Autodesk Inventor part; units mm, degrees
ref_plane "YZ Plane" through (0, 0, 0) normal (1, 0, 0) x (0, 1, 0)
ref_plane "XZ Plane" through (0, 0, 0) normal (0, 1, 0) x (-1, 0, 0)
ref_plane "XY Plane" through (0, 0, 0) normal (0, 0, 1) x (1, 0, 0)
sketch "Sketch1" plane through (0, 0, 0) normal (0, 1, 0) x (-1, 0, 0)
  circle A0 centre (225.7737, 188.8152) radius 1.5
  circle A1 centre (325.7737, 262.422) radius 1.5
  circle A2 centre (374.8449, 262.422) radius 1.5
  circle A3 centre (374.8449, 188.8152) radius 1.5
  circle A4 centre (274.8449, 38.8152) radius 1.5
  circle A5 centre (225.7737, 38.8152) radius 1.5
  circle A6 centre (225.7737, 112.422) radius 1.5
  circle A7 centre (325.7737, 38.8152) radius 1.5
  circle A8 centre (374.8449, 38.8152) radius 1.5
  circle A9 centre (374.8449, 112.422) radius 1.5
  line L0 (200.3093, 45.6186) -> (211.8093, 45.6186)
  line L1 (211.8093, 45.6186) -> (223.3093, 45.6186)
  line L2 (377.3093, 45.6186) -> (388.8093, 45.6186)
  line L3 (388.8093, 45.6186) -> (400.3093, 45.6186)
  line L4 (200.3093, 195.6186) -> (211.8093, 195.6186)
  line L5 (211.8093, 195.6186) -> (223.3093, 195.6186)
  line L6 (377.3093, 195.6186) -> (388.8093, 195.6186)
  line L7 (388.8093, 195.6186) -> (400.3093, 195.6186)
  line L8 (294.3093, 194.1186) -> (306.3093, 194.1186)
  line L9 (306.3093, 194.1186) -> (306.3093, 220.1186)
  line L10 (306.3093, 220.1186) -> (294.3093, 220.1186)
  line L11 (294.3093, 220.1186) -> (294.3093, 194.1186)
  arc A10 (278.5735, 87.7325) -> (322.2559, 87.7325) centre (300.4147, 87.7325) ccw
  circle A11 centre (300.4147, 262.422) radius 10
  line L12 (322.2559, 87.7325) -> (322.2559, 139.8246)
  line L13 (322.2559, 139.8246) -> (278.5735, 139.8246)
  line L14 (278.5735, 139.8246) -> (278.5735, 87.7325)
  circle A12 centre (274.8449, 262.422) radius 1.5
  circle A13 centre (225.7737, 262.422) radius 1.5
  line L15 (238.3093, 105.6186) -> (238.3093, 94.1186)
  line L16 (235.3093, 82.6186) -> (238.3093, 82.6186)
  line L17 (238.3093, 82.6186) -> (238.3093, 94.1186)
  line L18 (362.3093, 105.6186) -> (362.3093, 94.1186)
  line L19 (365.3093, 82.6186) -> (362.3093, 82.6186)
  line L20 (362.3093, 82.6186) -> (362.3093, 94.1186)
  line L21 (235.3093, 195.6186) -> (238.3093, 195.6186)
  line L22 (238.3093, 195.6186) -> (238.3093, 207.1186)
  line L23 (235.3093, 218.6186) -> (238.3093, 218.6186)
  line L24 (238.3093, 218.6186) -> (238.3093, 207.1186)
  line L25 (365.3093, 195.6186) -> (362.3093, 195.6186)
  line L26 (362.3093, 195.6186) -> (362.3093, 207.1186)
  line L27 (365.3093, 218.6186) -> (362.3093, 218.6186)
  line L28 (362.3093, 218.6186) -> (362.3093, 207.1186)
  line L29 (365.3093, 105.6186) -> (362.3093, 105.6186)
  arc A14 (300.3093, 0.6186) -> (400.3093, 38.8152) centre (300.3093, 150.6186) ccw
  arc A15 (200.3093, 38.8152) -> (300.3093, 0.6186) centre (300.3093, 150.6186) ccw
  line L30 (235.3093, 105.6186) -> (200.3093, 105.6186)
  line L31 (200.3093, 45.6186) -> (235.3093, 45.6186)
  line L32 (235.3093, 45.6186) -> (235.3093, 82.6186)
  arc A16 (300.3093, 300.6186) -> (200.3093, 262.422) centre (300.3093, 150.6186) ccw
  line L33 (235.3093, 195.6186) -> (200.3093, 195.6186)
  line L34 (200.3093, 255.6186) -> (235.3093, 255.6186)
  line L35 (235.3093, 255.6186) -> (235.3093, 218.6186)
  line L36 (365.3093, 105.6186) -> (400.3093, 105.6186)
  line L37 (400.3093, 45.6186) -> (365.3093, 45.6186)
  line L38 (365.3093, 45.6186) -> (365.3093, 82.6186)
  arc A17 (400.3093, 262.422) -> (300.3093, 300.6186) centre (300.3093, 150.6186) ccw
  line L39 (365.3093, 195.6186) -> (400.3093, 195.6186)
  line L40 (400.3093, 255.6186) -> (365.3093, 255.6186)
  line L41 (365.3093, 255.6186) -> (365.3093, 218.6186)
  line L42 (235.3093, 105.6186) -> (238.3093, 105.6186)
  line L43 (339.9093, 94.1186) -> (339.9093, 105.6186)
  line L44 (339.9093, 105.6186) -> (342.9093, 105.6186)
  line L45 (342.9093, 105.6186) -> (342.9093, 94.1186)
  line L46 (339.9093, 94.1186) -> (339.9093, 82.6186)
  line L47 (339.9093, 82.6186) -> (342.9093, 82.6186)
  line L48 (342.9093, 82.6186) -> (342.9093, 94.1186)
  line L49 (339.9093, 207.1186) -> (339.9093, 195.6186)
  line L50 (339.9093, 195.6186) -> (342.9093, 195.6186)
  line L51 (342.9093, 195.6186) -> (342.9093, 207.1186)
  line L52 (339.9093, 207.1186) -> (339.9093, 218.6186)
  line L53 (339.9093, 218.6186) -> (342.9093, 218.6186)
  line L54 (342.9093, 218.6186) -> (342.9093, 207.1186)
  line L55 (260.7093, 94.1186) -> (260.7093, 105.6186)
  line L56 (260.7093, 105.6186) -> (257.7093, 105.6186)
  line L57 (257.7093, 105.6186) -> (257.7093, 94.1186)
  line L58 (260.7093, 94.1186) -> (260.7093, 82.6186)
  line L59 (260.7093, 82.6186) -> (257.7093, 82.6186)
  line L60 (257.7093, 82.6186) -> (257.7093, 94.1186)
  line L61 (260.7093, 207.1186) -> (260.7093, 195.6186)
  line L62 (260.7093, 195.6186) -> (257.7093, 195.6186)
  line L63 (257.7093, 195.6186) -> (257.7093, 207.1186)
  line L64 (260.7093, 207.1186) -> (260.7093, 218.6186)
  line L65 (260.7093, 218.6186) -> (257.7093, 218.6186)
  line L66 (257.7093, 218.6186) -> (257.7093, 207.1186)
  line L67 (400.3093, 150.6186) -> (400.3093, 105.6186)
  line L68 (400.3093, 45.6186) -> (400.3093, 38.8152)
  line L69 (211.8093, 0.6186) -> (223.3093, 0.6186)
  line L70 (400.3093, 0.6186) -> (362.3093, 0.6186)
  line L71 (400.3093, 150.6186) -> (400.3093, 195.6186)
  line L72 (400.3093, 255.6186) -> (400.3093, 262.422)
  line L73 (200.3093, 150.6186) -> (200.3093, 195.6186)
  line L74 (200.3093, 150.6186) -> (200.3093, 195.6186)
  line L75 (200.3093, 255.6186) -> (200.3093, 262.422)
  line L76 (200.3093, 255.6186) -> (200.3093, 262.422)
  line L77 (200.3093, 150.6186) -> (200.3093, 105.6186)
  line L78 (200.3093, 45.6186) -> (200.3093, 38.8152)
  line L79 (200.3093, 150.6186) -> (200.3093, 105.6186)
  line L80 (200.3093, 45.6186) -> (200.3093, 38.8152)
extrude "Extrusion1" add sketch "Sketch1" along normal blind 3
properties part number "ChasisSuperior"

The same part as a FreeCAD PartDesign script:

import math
import FreeCAD as App
import Part
import Sketcher

doc = App.newDocument("Part")
params = doc.addObject("Spreadsheet::Sheet", "Params")
for row, (alias, value) in enumerate([
    ("sketch1_diameter", "3 mm"),
    ("sketch1_diameter2", "20 mm"),
    ("sketch1_radius", "150 mm"),
    ("sketch1_width", "35 mm"),
    ("sketch1_width2", "3 mm"),
    ("pad1_length", "3 mm"),
], start=1):
    params.set(f"A{row}", alias)
    params.set(f"B{row}", "=" + value)
    params.setAlias(f"B{row}", alias)

body = doc.addObject("PartDesign::Body", "Body")

# Sketch on XZ plane
sketch1 = body.newObject("Sketcher::SketchObject", "Sketch")
sketch1.AttachmentSupport = (doc.getObject("XZ_Plane"), [""])
sketch1.MapMode = "FlatFace"
sketch1.addGeometry([
    Part.LineSegment(App.Vector(-235.3093, 45.6186, 0), App.Vector(-200.3093, 45.6186, 0)),  # 0
    Part.LineSegment(App.Vector(-200.3093, 45.6186, 0), App.Vector(-200.3093, 38.8152, 0)),  # 1
    Part.ArcOfCircle(Part.Circle(App.Vector(-300.3093, 150.6186, 0), App.Vector(0, 0, 1), 150), math.radians(-90), math.radians(-48.189685)),  # 2
    Part.ArcOfCircle(Part.Circle(App.Vector(-300.3093, 150.6186, 0), App.Vector(0, 0, 1), 150.000001), math.radians(-131.810315), math.radians(-90)),  # 3
    Part.LineSegment(App.Vector(-400.3093, 38.8152, 0), App.Vector(-400.3093, 45.6186, 0)),  # 4
    Part.LineSegment(App.Vector(-400.3093, 45.6186, 0), App.Vector(-365.3093, 45.6186, 0)),  # 5
    Part.LineSegment(App.Vector(-365.3093, 45.6186, 0), App.Vector(-365.3093, 82.6186, 0)),  # 6
    Part.LineSegment(App.Vector(-365.3093, 82.6186, 0), App.Vector(-362.3093, 82.6186, 0)),  # 7
    Part.LineSegment(App.Vector(-362.3093, 82.6186, 0), App.Vector(-362.3093, 105.6186, 0)),  # 8
    Part.LineSegment(App.Vector(-362.3093, 105.6186, 0), App.Vector(-400.3093, 105.6186, 0)),  # 9
    Part.LineSegment(App.Vector(-400.3093, 105.6186, 0), App.Vector(-400.3093, 195.6186, 0)),  # 10
    Part.LineSegment(App.Vector(-400.3093, 195.6186, 0), App.Vector(-362.3093, 195.6186, 0)),  # 11
    Part.LineSegment(App.Vector(-362.3093, 195.6186, 0), App.Vector(-362.3093, 218.6186, 0)),  # 12
    Part.LineSegment(App.Vector(-362.3093, 218.6186, 0), App.Vector(-365.3093, 218.6186, 0)),  # 13
    Part.LineSegment(App.Vector(-365.3093, 218.6186, 0), App.Vector(-365.3093, 255.6186, 0)),  # 14
    Part.LineSegment(App.Vector(-365.3093, 255.6186, 0), App.Vector(-400.3093, 255.6186, 0)),  # 15
    Part.LineSegment(App.Vector(-400.3093, 255.6186, 0), App.Vector(-400.3093, 262.422, 0)),  # 16
    Part.ArcOfCircle(Part.Circle(App.Vector(-300.3093, 150.6186, 0), App.Vector(0, 0, 1), 150), math.radians(90), math.radians(131.810315)),  # 17
    Part.ArcOfCircle(Part.Circle(App.Vector(-300.3093, 150.6186, 0), App.Vector(0, 0, 1), 150.000001), math.radians(48.189685), math.radians(90)),  # 18
    Part.LineSegment(App.Vector(-200.3093, 262.422, 0), App.Vector(-200.3093, 255.6186, 0)),  # 19
    Part.LineSegment(App.Vector(-200.3093, 255.6186, 0), App.Vector(-235.3093, 255.6186, 0)),  # 20
    Part.LineSegment(App.Vector(-235.3093, 255.6186, 0), App.Vector(-235.3093, 218.6186, 0)),  # 21
    Part.LineSegment(App.Vector(-235.3093, 218.6186, 0), App.Vector(-238.3093, 218.6186, 0)),  # 22
    Part.LineSegment(App.Vector(-238.3093, 218.6186, 0), App.Vector(-238.3093, 195.6186, 0)),  # 23
    Part.LineSegment(App.Vector(-238.3093, 195.6186, 0), App.Vector(-200.3093, 195.6186, 0)),  # 24
    Part.LineSegment(App.Vector(-200.3093, 195.6186, 0), App.Vector(-200.3093, 105.6186, 0)),  # 25
    Part.LineSegment(App.Vector(-200.3093, 105.6186, 0), App.Vector(-238.3093, 105.6186, 0)),  # 26
    Part.LineSegment(App.Vector(-238.3093, 105.6186, 0), App.Vector(-238.3093, 82.6186, 0)),  # 27
    Part.LineSegment(App.Vector(-238.3093, 82.6186, 0), App.Vector(-235.3093, 82.6186, 0)),  # 28
    Part.LineSegment(App.Vector(-235.3093, 82.6186, 0), App.Vector(-235.3093, 45.6186, 0)),  # 29
    Part.Circle(App.Vector(-225.7737, 38.8152, 0), App.Vector(0, 0, 1), 1.5),  # 30
    Part.Circle(App.Vector(-274.8449, 38.8152, 0), App.Vector(0, 0, 1), 1.5),  # 31
    Part.Circle(App.Vector(-225.7737, 112.422, 0), App.Vector(0, 0, 1), 1.5),  # 32
    Part.LineSegment(App.Vector(-260.7093, 105.6186, 0), App.Vector(-260.7093, 82.6186, 0)),  # 33
    Part.LineSegment(App.Vector(-260.7093, 82.6186, 0), App.Vector(-257.7093, 82.6186, 0)),  # 34
    Part.LineSegment(App.Vector(-257.7093, 82.6186, 0), App.Vector(-257.7093, 105.6186, 0)),  # 35
    Part.LineSegment(App.Vector(-257.7093, 105.6186, 0), App.Vector(-260.7093, 105.6186, 0)),  # 36
    Part.Circle(App.Vector(-325.7737, 38.8152, 0), App.Vector(0, 0, 1), 1.5),  # 37
    Part.Circle(App.Vector(-374.8449, 38.8152, 0), App.Vector(0, 0, 1), 1.5),  # 38
    Part.ArcOfCircle(Part.Circle(App.Vector(-300.4147, 87.7325, 0), App.Vector(0, 0, 1), 21.8412), math.radians(180), math.radians(360)),  # 39
    Part.LineSegment(App.Vector(-278.5735, 87.7325, 0), App.Vector(-278.5735, 139.8246, 0)),  # 40
    Part.LineSegment(App.Vector(-278.5735, 139.8246, 0), App.Vector(-322.2559, 139.8246, 0)),  # 41
    Part.LineSegment(App.Vector(-322.2559, 139.8246, 0), App.Vector(-322.2559, 87.7325, 0)),  # 42
    Part.LineSegment(App.Vector(-339.9093, 82.6186, 0), App.Vector(-339.9093, 105.6186, 0)),  # 43
    Part.LineSegment(App.Vector(-339.9093, 105.6186, 0), App.Vector(-342.9093, 105.6186, 0)),  # 44
    Part.LineSegment(App.Vector(-342.9093, 105.6186, 0), App.Vector(-342.9093, 82.6186, 0)),  # 45
    Part.LineSegment(App.Vector(-342.9093, 82.6186, 0), App.Vector(-339.9093, 82.6186, 0)),  # 46
    Part.Circle(App.Vector(-374.8449, 112.422, 0), App.Vector(0, 0, 1), 1.5),  # 47
    Part.Circle(App.Vector(-225.7737, 188.8152, 0), App.Vector(0, 0, 1), 1.5),  # 48
    Part.LineSegment(App.Vector(-260.7093, 218.6186, 0), App.Vector(-260.7093, 195.6186, 0)),  # 49
    Part.LineSegment(App.Vector(-260.7093, 195.6186, 0), App.Vector(-257.7093, 195.6186, 0)),  # 50
    Part.LineSegment(App.Vector(-257.7093, 195.6186, 0), App.Vector(-257.7093, 218.6186, 0)),  # 51
    Part.LineSegment(App.Vector(-257.7093, 218.6186, 0), App.Vector(-260.7093, 218.6186, 0)),  # 52
    Part.Circle(App.Vector(-225.7737, 262.422, 0), App.Vector(0, 0, 1), 1.5),  # 53
    Part.Circle(App.Vector(-274.8449, 262.422, 0), App.Vector(0, 0, 1), 1.5),  # 54
    Part.LineSegment(App.Vector(-306.3093, 194.1186, 0), App.Vector(-294.3093, 194.1186, 0)),  # 55
    Part.LineSegment(App.Vector(-294.3093, 194.1186, 0), App.Vector(-294.3093, 220.1186, 0)),  # 56
    Part.LineSegment(App.Vector(-294.3093, 220.1186, 0), App.Vector(-306.3093, 220.1186, 0)),  # 57
    Part.LineSegment(App.Vector(-306.3093, 220.1186, 0), App.Vector(-306.3093, 194.1186, 0)),  # 58
    Part.LineSegment(App.Vector(-339.9093, 195.6186, 0), App.Vector(-339.9093, 218.6186, 0)),  # 59
    Part.LineSegment(App.Vector(-339.9093, 218.6186, 0), App.Vector(-342.9093, 218.6186, 0)),  # 60
    Part.LineSegment(App.Vector(-342.9093, 218.6186, 0), App.Vector(-342.9093, 195.6186, 0)),  # 61
    Part.LineSegment(App.Vector(-342.9093, 195.6186, 0), App.Vector(-339.9093, 195.6186, 0)),  # 62
    Part.Circle(App.Vector(-374.8449, 188.8152, 0), App.Vector(0, 0, 1), 1.5),  # 63
    Part.Circle(App.Vector(-300.4147, 262.422, 0), App.Vector(0, 0, 1), 10),  # 64
    Part.Circle(App.Vector(-325.7737, 262.422, 0), App.Vector(0, 0, 1), 1.5),  # 65
    Part.Circle(App.Vector(-374.8449, 262.422, 0), App.Vector(0, 0, 1), 1.5),  # 66
], False)
sketch1.addConstraint([
    Sketcher.Constraint("Coincident", 0, 2, 1, 1),
    Sketcher.Constraint("Coincident", 1, 2, 2, 2),
    Sketcher.Constraint("Tangent", 2, 1, 3, 2),
    Sketcher.Constraint("Coincident", 3, 1, 4, 1),
    Sketcher.Constraint("Coincident", 4, 2, 5, 1),
    Sketcher.Constraint("Coincident", 5, 2, 6, 1),
    Sketcher.Constraint("Coincident", 6, 2, 7, 1),
    Sketcher.Constraint("Coincident", 7, 2, 8, 1),
    Sketcher.Constraint("Coincident", 8, 2, 9, 1),
    Sketcher.Constraint("Coincident", 9, 2, 10, 1),
    Sketcher.Constraint("Coincident", 10, 2, 11, 1),
    Sketcher.Constraint("Coincident", 11, 2, 12, 1),
    Sketcher.Constraint("Coincident", 12, 2, 13, 1),
    Sketcher.Constraint("Coincident", 13, 2, 14, 1),
    Sketcher.Constraint("Coincident", 14, 2, 15, 1),
    Sketcher.Constraint("Coincident", 15, 2, 16, 1),
    Sketcher.Constraint("Coincident", 16, 2, 17, 2),
    Sketcher.Constraint("Tangent", 17, 1, 18, 2),
    Sketcher.Constraint("Coincident", 18, 1, 19, 1),
    Sketcher.Constraint("Coincident", 19, 2, 20, 1),
    Sketcher.Constraint("Coincident", 20, 2, 21, 1),
    Sketcher.Constraint("Coincident", 21, 2, 22, 1),
    Sketcher.Constraint("Coincident", 22, 2, 23, 1),
    Sketcher.Constraint("Coincident", 23, 2, 24, 1),
    Sketcher.Constraint("Coincident", 24, 2, 25, 1),
    Sketcher.Constraint("Coincident", 25, 2, 26, 1),
    Sketcher.Constraint("Coincident", 26, 2, 27, 1),
    Sketcher.Constraint("Coincident", 27, 2, 28, 1),
    Sketcher.Constraint("Coincident", 28, 2, 29, 1),
    Sketcher.Constraint("Coincident", 29, 2, 0, 1),
    Sketcher.Constraint("Coincident", 33, 2, 34, 1),
    Sketcher.Constraint("Coincident", 34, 2, 35, 1),
    Sketcher.Constraint("Coincident", 35, 2, 36, 1),
    Sketcher.Constraint("Coincident", 36, 2, 33, 1),
    Sketcher.Constraint("Tangent", 39, 2, 40, 1),
    Sketcher.Constraint("Coincident", 40, 2, 41, 1),
    Sketcher.Constraint("Coincident", 41, 2, 42, 1),
    Sketcher.Constraint("Tangent", 42, 2, 39, 1),
    Sketcher.Constraint("Coincident", 43, 2, 44, 1),
    Sketcher.Constraint("Coincident", 44, 2, 45, 1),
    Sketcher.Constraint("Coincident", 45, 2, 46, 1),
    Sketcher.Constraint("Coincident", 46, 2, 43, 1),
    Sketcher.Constraint("Coincident", 49, 2, 50, 1),
    Sketcher.Constraint("Coincident", 50, 2, 51, 1),
    Sketcher.Constraint("Coincident", 51, 2, 52, 1),
    Sketcher.Constraint("Coincident", 52, 2, 49, 1),
    Sketcher.Constraint("Coincident", 55, 2, 56, 1),
    Sketcher.Constraint("Coincident", 56, 2, 57, 1),
    Sketcher.Constraint("Coincident", 57, 2, 58, 1),
    Sketcher.Constraint("Coincident", 58, 2, 55, 1),
    Sketcher.Constraint("Coincident", 59, 2, 60, 1),
    Sketcher.Constraint("Coincident", 60, 2, 61, 1),
    Sketcher.Constraint("Coincident", 61, 2, 62, 1),
    Sketcher.Constraint("Coincident", 62, 2, 59, 1),
    Sketcher.Constraint("Horizontal", 0),
    Sketcher.Constraint("Vertical", 1),
    Sketcher.Constraint("Vertical", 4),
    Sketcher.Constraint("Horizontal", 5),
    Sketcher.Constraint("Vertical", 6),
    Sketcher.Constraint("Horizontal", 7),
    Sketcher.Constraint("Vertical", 8),
    Sketcher.Constraint("Horizontal", 9),
    Sketcher.Constraint("Vertical", 10),
    Sketcher.Constraint("Horizontal", 11),
    Sketcher.Constraint("Vertical", 12),
    Sketcher.Constraint("Horizontal", 13),
    Sketcher.Constraint("Vertical", 14),
    Sketcher.Constraint("Horizontal", 15),
    Sketcher.Constraint("Vertical", 16),
    Sketcher.Constraint("Vertical", 19),
    Sketcher.Constraint("Horizontal", 20),
    Sketcher.Constraint("Vertical", 21),
    Sketcher.Constraint("Horizontal", 22),
    Sketcher.Constraint("Vertical", 23),
    Sketcher.Constraint("Horizontal", 24),
    Sketcher.Constraint("Vertical", 25),
    Sketcher.Constraint("Horizontal", 26),
    Sketcher.Constraint("Vertical", 27),
    Sketcher.Constraint("Horizontal", 28),
    Sketcher.Constraint("Vertical", 29),
    Sketcher.Constraint("Vertical", 33),
    Sketcher.Constraint("Horizontal", 34),
    Sketcher.Constraint("Vertical", 35),
    Sketcher.Constraint("Horizontal", 36),
    Sketcher.Constraint("Vertical", 40),
    Sketcher.Constraint("Horizontal", 41),
    Sketcher.Constraint("Vertical", 42),
    Sketcher.Constraint("Vertical", 43),
    Sketcher.Constraint("Horizontal", 44),
    Sketcher.Constraint("Vertical", 45),
    Sketcher.Constraint("Horizontal", 46),
    Sketcher.Constraint("Vertical", 49),
    Sketcher.Constraint("Horizontal", 50),
    Sketcher.Constraint("Vertical", 51),
    Sketcher.Constraint("Horizontal", 52),
    Sketcher.Constraint("Horizontal", 55),
    Sketcher.Constraint("Vertical", 56),
    Sketcher.Constraint("Horizontal", 57),
    Sketcher.Constraint("Vertical", 58),
    Sketcher.Constraint("Vertical", 59),
    Sketcher.Constraint("Horizontal", 60),
    Sketcher.Constraint("Vertical", 61),
    Sketcher.Constraint("Horizontal", 62),
    Sketcher.Constraint("Coincident", 17, 3, 2, 3),
    Sketcher.Constraint("Equal", 2, 3),
    Sketcher.Constraint("Equal", 3, 17),
    Sketcher.Constraint("Equal", 17, 18),
    Sketcher.Constraint("Equal", 30, 31),
    Sketcher.Constraint("Equal", 31, 32),
    Sketcher.Constraint("Equal", 32, 37),
    Sketcher.Constraint("Equal", 37, 38),
    Sketcher.Constraint("Equal", 38, 47),
    Sketcher.Constraint("Equal", 47, 48),
    Sketcher.Constraint("Equal", 48, 53),
    Sketcher.Constraint("Equal", 53, 54),
    Sketcher.Constraint("Equal", 54, 63),
    Sketcher.Constraint("Equal", 63, 65),
    Sketcher.Constraint("Equal", 65, 66),
    Sketcher.Constraint("Horizontal", 30, 3, 31, 3),
    Sketcher.Constraint("Horizontal", 31, 3, 37, 3),
    Sketcher.Constraint("Horizontal", 37, 3, 38, 3),
    Sketcher.Constraint("Horizontal", 32, 3, 47, 3),
    Sketcher.Constraint("Horizontal", 53, 3, 54, 3),
    Sketcher.Constraint("Horizontal", 48, 3, 63, 3),
    Sketcher.Constraint("Horizontal", 54, 3, 64, 3),
    Sketcher.Constraint("Horizontal", 64, 3, 65, 3),
    Sketcher.Constraint("Horizontal", 65, 3, 66, 3),
    Sketcher.Constraint("Horizontal", 38, 3, 1, 2),
    Sketcher.Constraint("Horizontal", 1, 2, 3, 1),
    Sketcher.Constraint("Horizontal", 0, 2, 4, 2),
    Sketcher.Constraint("Horizontal", 66, 3, 16, 2),
    Sketcher.Constraint("Horizontal", 16, 2, 18, 1),
    Sketcher.Constraint("Horizontal", 15, 2, 19, 2),
    Sketcher.Constraint("Horizontal", 13, 2, 21, 2),
    Sketcher.Constraint("Horizontal", 11, 2, 23, 2),
    Sketcher.Constraint("Horizontal", 9, 2, 25, 2),
    Sketcher.Constraint("Horizontal", 7, 2, 27, 2),
    Sketcher.Constraint("Horizontal", 28, 2, 33, 2),
    Sketcher.Constraint("Horizontal", 26, 2, 35, 2),
    Sketcher.Constraint("Horizontal", 36, 2, 43, 2),
    Sketcher.Constraint("Horizontal", 34, 2, 45, 2),
    Sketcher.Constraint("Horizontal", 24, 2, 49, 2),
    Sketcher.Constraint("Horizontal", 22, 2, 51, 2),
    Sketcher.Constraint("Horizontal", 52, 2, 59, 2),
    Sketcher.Constraint("Horizontal", 50, 2, 61, 2),
    Sketcher.Constraint("Vertical", 30, 3, 32, 3),
    Sketcher.Constraint("Vertical", 38, 3, 47, 3),
    Sketcher.Constraint("Vertical", 32, 3, 48, 3),
    Sketcher.Constraint("Vertical", 48, 3, 53, 3),
    Sketcher.Constraint("Vertical", 31, 3, 54, 3),
    Sketcher.Constraint("Vertical", 47, 3, 63, 3),
    Sketcher.Constraint("Vertical", 39, 3, 64, 3),
    Sketcher.Constraint("Vertical", 37, 3, 65, 3),
    Sketcher.Constraint("Vertical", 63, 3, 66, 3),
    Sketcher.Constraint("Vertical", 18, 3, 2, 1),
    Sketcher.Constraint("Vertical", 4, 2, 9, 2),
    Sketcher.Constraint("Vertical", 8, 2, 11, 2),
    Sketcher.Constraint("Vertical", 6, 2, 13, 2),
    Sketcher.Constraint("Vertical", 10, 2, 15, 2),
    Sketcher.Constraint("Vertical", 2, 1, 17, 1),
    Sketcher.Constraint("Vertical", 19, 2, 24, 2),
    Sketcher.Constraint("Vertical", 23, 2, 26, 2),
    Sketcher.Constraint("Vertical", 21, 2, 28, 2),
    Sketcher.Constraint("Vertical", 36, 2, 49, 2),
    Sketcher.Constraint("Vertical", 35, 2, 50, 2),
    Sketcher.Constraint("Vertical", 46, 2, 59, 2),
    Sketcher.Constraint("Vertical", 45, 2, 60, 2),
    Sketcher.Constraint("Equal", 0, 5),
    Sketcher.Constraint("Equal", 13, 22),
    Sketcher.Constraint("Equal", 28, 34),
    Sketcher.Constraint("Equal", 36, 44),
    Sketcher.Constraint("Equal", 8, 12),
    Sketcher.Constraint("Equal", 6, 14),
    Sketcher.Constraint("Equal", 4, 16),
    Sketcher.Constraint("Diameter", 30, 3.0),
    Sketcher.Constraint("Diameter", 64, 20.0),
    Sketcher.Constraint("Radius", 2, 150.0),
    Sketcher.Constraint("DistanceX", 0, 1, 0, 2, 35.0),
    Sketcher.Constraint("DistanceX", 7, 1, 7, 2, 3.0),
    Sketcher.Constraint("DistanceX", 55, 1, 55, 2, 12.0),
    Sketcher.Constraint("DistanceY", 6, 1, 6, 2, 37.0),
    Sketcher.Constraint("DistanceY", 8, 1, 8, 2, 23.0),
    Sketcher.Constraint("DistanceY", 10, 1, 10, 2, 90.0),
    Sketcher.Constraint("DistanceY", 56, 1, 56, 2, 26.0),
    Sketcher.Constraint("Radius", 39, 21.8412),
    Sketcher.Constraint("DistanceY", 40, 1, 40, 2, 52.092),
    Sketcher.Constraint("DistanceY", 1, 2, 1, 1, 6.8034),
    Sketcher.Constraint("DistanceX", 31, 3, -1, 1, 274.845),
    Sketcher.Constraint("DistanceY", -1, 1, 32, 3, 112.422),
    Sketcher.Constraint("DistanceX", 38, 3, -1, 1, 374.845),
    Sketcher.Constraint("DistanceY", -1, 1, 53, 3, 262.422),
    Sketcher.Constraint("DistanceX", 41, 2, -1, 1, 322.256),
    Sketcher.Constraint("DistanceX", 2, 3, -1, 1, 300.3093),
    Sketcher.Constraint("DistanceX", 30, 3, -1, 1, 225.7737),
    Sketcher.Constraint("DistanceX", 37, 3, -1, 1, 325.7737),
    Sketcher.Constraint("DistanceY", -1, 1, 39, 3, 87.7325),
    Sketcher.Constraint("DistanceY", -1, 1, 48, 3, 188.8152),
    Sketcher.Constraint("DistanceX", 33, 2, -1, 1, 260.7093),
    Sketcher.Constraint("DistanceX", 43, 2, -1, 1, 339.9093),
    Sketcher.Constraint("DistanceX", 55, 2, -1, 1, 294.3093),
    Sketcher.Constraint("DistanceY", -1, 1, 55, 2, 194.1186),
])
sketch1.setExpression("Constraints[174]", "Params.sketch1_diameter")
sketch1.setExpression("Constraints[175]", "Params.sketch1_diameter2")
sketch1.setExpression("Constraints[176]", "Params.sketch1_radius")
sketch1.setExpression("Constraints[177]", "Params.sketch1_width")
sketch1.setExpression("Constraints[178]", "Params.sketch1_width2")
pad1 = body.newObject("PartDesign::Pad", "Pad")
pad1.Profile = sketch1
pad1.setExpression("Length", "Params.pad1_length")
pad1.Reversed = True

doc.recompute()
